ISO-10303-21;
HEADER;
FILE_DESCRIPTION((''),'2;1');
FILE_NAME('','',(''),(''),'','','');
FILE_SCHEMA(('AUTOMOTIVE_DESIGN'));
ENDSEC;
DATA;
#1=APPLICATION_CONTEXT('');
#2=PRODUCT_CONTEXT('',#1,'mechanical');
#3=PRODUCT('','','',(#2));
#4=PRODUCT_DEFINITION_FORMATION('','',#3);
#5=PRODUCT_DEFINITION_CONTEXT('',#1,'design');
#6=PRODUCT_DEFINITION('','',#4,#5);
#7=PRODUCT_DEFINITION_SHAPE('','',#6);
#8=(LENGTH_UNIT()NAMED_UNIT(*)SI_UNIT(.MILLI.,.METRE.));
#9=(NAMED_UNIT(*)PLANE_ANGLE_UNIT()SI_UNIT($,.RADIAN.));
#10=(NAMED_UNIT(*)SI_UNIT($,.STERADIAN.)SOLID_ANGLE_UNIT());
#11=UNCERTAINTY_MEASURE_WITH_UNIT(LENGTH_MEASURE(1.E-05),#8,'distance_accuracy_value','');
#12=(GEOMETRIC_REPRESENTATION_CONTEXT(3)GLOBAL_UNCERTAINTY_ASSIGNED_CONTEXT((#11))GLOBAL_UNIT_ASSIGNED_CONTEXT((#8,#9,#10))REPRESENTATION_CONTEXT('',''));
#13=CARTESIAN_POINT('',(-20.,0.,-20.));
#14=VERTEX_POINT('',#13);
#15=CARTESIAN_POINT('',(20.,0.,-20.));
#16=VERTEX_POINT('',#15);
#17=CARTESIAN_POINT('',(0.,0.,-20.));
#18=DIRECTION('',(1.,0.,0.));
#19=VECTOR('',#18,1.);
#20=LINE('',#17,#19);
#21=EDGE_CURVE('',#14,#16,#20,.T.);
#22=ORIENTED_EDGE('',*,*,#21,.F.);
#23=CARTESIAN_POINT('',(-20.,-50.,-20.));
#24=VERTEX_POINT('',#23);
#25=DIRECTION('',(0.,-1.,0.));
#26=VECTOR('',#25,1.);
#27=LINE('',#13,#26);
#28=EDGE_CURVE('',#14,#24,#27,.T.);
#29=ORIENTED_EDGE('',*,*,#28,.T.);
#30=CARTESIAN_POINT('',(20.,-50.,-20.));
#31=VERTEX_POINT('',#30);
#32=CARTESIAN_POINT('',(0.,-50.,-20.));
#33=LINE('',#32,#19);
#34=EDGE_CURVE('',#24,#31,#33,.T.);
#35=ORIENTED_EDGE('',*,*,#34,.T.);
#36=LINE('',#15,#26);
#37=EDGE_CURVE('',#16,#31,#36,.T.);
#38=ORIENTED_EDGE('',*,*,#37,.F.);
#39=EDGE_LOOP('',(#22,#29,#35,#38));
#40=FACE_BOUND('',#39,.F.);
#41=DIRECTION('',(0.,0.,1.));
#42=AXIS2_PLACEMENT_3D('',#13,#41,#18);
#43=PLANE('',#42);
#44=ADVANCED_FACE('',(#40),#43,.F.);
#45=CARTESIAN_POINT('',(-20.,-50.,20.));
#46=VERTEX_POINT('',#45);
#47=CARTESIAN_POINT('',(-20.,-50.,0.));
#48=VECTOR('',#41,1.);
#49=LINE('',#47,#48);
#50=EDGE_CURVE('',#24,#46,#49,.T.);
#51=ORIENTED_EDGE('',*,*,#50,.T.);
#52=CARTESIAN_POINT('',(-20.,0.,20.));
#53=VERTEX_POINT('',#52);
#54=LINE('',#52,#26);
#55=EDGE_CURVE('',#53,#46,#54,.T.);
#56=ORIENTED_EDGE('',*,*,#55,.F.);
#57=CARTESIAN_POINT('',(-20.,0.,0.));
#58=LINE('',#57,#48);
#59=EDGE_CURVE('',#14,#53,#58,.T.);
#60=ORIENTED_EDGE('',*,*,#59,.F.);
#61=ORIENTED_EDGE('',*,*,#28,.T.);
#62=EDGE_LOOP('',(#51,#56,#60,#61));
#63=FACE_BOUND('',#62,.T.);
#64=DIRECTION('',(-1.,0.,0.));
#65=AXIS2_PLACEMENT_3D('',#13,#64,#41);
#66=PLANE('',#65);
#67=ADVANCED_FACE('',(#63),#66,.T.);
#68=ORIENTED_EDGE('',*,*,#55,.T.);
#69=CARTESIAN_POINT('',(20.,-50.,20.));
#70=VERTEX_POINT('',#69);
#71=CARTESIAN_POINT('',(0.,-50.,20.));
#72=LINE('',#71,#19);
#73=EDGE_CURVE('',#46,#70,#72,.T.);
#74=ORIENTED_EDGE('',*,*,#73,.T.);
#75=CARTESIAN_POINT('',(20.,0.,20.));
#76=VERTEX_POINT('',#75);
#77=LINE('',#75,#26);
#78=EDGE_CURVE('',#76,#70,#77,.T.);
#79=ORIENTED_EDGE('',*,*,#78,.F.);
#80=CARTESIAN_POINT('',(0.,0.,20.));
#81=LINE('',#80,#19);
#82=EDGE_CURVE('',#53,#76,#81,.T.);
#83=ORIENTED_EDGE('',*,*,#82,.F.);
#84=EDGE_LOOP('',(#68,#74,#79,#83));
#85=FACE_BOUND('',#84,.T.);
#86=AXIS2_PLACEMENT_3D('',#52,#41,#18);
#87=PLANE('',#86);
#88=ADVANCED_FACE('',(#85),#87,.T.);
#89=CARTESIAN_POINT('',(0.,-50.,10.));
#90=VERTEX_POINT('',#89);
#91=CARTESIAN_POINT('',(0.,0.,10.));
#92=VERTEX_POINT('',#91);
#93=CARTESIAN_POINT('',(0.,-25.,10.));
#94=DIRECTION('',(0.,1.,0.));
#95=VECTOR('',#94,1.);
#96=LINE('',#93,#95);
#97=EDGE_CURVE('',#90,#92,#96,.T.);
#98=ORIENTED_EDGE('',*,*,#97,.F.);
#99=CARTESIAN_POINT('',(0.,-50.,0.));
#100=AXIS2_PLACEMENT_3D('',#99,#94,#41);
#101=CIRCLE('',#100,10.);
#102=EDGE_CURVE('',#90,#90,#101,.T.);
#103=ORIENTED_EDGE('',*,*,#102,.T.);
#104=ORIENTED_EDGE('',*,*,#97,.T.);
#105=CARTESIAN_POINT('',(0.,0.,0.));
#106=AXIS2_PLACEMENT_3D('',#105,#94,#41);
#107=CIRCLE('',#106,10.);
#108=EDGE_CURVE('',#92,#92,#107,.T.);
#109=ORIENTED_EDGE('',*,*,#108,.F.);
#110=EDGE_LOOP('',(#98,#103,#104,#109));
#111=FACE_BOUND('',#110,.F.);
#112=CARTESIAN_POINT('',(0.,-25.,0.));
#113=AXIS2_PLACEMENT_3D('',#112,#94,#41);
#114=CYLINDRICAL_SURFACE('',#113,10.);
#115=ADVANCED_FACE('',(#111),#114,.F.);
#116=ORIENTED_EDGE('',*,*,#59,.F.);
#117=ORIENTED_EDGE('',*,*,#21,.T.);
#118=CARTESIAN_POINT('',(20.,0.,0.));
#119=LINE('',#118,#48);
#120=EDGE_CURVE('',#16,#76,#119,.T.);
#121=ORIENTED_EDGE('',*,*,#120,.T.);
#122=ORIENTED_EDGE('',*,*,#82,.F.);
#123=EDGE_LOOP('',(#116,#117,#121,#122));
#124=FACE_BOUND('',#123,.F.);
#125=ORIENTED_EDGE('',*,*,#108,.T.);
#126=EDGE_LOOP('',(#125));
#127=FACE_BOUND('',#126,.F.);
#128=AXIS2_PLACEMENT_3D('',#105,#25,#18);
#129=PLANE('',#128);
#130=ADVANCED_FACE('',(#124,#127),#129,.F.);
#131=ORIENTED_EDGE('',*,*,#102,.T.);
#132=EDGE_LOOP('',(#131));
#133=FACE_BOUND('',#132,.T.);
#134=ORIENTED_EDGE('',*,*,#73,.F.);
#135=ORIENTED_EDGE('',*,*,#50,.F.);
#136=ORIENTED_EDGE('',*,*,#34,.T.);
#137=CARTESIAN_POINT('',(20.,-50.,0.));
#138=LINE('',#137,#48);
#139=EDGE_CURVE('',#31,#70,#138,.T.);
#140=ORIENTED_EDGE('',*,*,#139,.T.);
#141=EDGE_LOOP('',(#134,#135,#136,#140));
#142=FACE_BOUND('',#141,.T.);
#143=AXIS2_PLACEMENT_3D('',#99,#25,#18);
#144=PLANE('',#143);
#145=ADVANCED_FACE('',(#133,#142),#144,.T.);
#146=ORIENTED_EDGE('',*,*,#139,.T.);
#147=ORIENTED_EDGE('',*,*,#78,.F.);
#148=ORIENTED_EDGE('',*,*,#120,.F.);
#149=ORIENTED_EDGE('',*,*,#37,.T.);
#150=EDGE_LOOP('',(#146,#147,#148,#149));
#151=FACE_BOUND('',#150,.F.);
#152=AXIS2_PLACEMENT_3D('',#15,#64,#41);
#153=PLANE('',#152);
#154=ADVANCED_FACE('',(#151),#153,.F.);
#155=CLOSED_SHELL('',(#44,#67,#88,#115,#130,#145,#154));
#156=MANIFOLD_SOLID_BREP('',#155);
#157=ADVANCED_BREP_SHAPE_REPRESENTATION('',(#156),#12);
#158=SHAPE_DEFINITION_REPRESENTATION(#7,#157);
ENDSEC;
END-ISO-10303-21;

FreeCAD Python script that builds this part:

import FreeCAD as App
import Part
import Sketcher
Q = App.Units.Quantity

doc = App.newDocument("Part")
body = doc.addObject("PartDesign::Body", "Body")

sketch1 = body.newObject("Sketcher::SketchObject", "Sketch")
sketch1.AttachmentSupport = (doc.getObject("XZ_Plane"), [""])
sketch1.MapMode = "FlatFace"
sketch1.addGeometry([
    Part.LineSegment(App.Vector(-20, 20, 0), App.Vector(-20, -20, 0)),
    Part.LineSegment(App.Vector(-20, -20, 0), App.Vector(20, -20, 0)),
    Part.LineSegment(App.Vector(20, -20, 0), App.Vector(20, 20, 0)),
    Part.LineSegment(App.Vector(20, 20, 0), App.Vector(-20, 20, 0)),
], False)
sketch1.addConstraint([
    Sketcher.Constraint("Coincident", 0, 2, 1, 1),
    Sketcher.Constraint("Coincident", 1, 2, 2, 1),
    Sketcher.Constraint("Coincident", 2, 2, 3, 1),
    Sketcher.Constraint("Coincident", 3, 2, 0, 1),
    Sketcher.Constraint("Vertical", 0),
    Sketcher.Constraint("Horizontal", 1),
    Sketcher.Constraint("Vertical", 2),
    Sketcher.Constraint("Horizontal", 3),
    Sketcher.Constraint("Symmetric", 0, 2, 2, 2, -1, 1),
    Sketcher.Constraint("Equal", 3, 0),
    Sketcher.Constraint("DistanceX", 1, 1, 1, 2, Q("40 mm")),
])
pad1 = body.newObject("PartDesign::Pad", "Pad")
pad1.Profile = sketch1
pad1.Length = 50

sketch2 = body.newObject("Sketcher::SketchObject", "Sketch001")
sketch2.AttachmentSupport = (doc.getObject("YZ_Plane"), [""])
sketch2.MapMode = "FlatFace"
sketch2.addGeometry([
    Part.LineSegment(App.Vector(-50, 10, 0), App.Vector(-50, 0, 0)),
    Part.LineSegment(App.Vector(-50, 0, 0), App.Vector(0, 0, 0)),
    Part.LineSegment(App.Vector(0, 0, 0), App.Vector(0, 10, 0)),
    Part.LineSegment(App.Vector(0, 10, 0), App.Vector(-50, 10, 0)),
], False)
sketch2.addConstraint([
    Sketcher.Constraint("Coincident", 0, 2, 1, 1),
    Sketcher.Constraint("Coincident", 1, 2, 2, 1),
    Sketcher.Constraint("Coincident", 2, 2, 3, 1),
    Sketcher.Constraint("Coincident", 3, 2, 0, 1),
    Sketcher.Constraint("Vertical", 0),
    Sketcher.Constraint("Horizontal", 1),
    Sketcher.Constraint("Vertical", 2),
    Sketcher.Constraint("Horizontal", 3),
    Sketcher.Constraint("Coincident", 1, 2, -1, 1),
    Sketcher.Constraint("DistanceX", 1, 1, 1, 2, Q("50 mm")),
    Sketcher.Constraint("DistanceY", 0, 2, 0, 1, Q("10 mm")),
])
groove = body.newObject("PartDesign::Groove", "Groove")
groove.Profile = sketch2
groove.ReferenceAxis = (sketch2, ["H_Axis"])
groove.Angle = 360

doc.recompute()
